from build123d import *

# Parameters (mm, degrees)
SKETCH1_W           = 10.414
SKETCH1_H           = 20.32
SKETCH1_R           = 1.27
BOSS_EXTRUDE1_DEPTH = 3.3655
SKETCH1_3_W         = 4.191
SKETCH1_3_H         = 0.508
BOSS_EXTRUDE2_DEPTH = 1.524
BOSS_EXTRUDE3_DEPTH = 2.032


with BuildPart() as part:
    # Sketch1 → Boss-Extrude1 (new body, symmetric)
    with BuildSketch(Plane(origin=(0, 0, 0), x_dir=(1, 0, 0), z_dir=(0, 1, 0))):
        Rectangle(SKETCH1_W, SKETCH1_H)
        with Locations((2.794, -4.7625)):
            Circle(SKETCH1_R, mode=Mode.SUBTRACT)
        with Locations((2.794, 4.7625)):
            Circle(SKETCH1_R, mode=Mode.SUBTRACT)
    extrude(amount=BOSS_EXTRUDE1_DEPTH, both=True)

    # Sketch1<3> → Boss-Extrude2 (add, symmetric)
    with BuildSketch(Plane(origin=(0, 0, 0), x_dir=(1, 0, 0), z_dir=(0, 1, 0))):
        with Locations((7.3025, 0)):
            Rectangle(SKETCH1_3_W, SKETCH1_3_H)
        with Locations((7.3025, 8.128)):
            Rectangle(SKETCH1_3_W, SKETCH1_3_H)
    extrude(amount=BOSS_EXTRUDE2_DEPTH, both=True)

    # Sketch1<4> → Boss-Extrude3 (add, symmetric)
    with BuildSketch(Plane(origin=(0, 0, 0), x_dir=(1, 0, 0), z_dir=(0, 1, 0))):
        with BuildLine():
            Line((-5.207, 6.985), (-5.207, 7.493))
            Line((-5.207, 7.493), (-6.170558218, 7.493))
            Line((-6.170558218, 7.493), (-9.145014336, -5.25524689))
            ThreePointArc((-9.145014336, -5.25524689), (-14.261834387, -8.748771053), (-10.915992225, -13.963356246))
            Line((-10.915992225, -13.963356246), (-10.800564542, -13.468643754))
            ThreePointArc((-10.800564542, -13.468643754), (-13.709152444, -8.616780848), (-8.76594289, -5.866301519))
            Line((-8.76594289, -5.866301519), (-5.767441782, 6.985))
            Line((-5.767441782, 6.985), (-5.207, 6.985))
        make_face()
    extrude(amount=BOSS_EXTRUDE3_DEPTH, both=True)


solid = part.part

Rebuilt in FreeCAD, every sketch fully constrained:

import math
import FreeCAD as App
import Part
import Sketcher

V = App.Vector
Q = App.Units.Quantity

doc = App.newDocument("Part")
body = doc.addObject("PartDesign::Body", "Body")

sketch1 = doc.addObject("Sketcher::SketchObject", "Sketch")
body.addObject(sketch1)
sketch1.AttachmentSupport = (doc.XZ_Plane, [""])
sketch1.MapMode = "FlatFace"
sketch1.addGeometry(Part.LineSegment(V(-5.207, -10.16, 0), V(-5.207, 10.16, 0)), False)
sketch1.addGeometry(Part.LineSegment(V(-5.207, 10.16, 0), V(5.207, 10.16, 0)), False)
sketch1.addGeometry(Part.LineSegment(V(5.207, 10.16, 0), V(5.207, -10.16, 0)), False)
sketch1.addGeometry(Part.LineSegment(V(5.207, -10.16, 0), V(-5.207, -10.16, 0)), False)
sketch1.addGeometry(Part.Circle(V(2.794, 4.7625, 0), V(0, 0, 1), 1.27), False)
sketch1.addGeometry(Part.Circle(V(2.794, -4.7625, 0), V(0, 0, 1), 1.27), False)
sketch1.addConstraint(Sketcher.Constraint("Coincident", 0, 2, 1, 1))
sketch1.addConstraint(Sketcher.Constraint("Coincident", 1, 2, 2, 1))
sketch1.addConstraint(Sketcher.Constraint("Coincident", 2, 2, 3, 1))
sketch1.addConstraint(Sketcher.Constraint("Coincident", 3, 2, 0, 1))
sketch1.addConstraint(Sketcher.Constraint("Vertical", 0))
sketch1.addConstraint(Sketcher.Constraint("Horizontal", 1))
sketch1.addConstraint(Sketcher.Constraint("Vertical", 2))
sketch1.addConstraint(Sketcher.Constraint("Horizontal", 3))
sketch1.addConstraint(Sketcher.Constraint("Equal", 4, 5))
sketch1.addConstraint(Sketcher.Constraint("Symmetric", 0, 2, 2, 2, -1, 1))
sketch1.addConstraint(Sketcher.Constraint("Symmetric", 4, 3, 5, 3, -1))
sketch1.addConstraint(Sketcher.Constraint("Diameter", 4, Q("0.1 in")))
sketch1.addConstraint(Sketcher.Constraint("DistanceY", 0, 1, 0, 2, Q("0.8 in")))
sketch1.addConstraint(Sketcher.Constraint("DistanceX", 1, 1, 1, 2, Q("0.41 in")))
sketch1.addConstraint(Sketcher.Constraint("DistanceX", -1, 1, 4, 3, Q("0.11 in")))
sketch1.addConstraint(Sketcher.Constraint("DistanceY", -1, 1, 4, 3, Q("0.1875 in")))
pad1 = doc.addObject("PartDesign::Pad", "Pad")
body.addObject(pad1)
pad1.Profile = sketch1
pad1.Length = Q("0.265 in")
pad1.Midplane = True

sketch2 = doc.addObject("Sketcher::SketchObject", "Sketch001")
body.addObject(sketch2)
sketch2.AttachmentSupport = (doc.XZ_Plane, [""])
sketch2.MapMode = "FlatFace"
sketch2.addGeometry(Part.LineSegment(V(5.207, -0.254, 0), V(5.207, 0.254, 0)), False)
sketch2.addGeometry(Part.LineSegment(V(5.207, 0.254, 0), V(9.398, 0.254, 0)), False)
sketch2.addGeometry(Part.LineSegment(V(9.398, 0.254, 0), V(9.398, -0.254, 0)), False)
sketch2.addGeometry(Part.LineSegment(V(9.398, -0.254, 0), V(5.207, -0.254, 0)), False)
sketch2.addGeometry(Part.LineSegment(V(5.207, -8.382, 0), V(5.207, -7.874, 0)), False)
sketch2.addGeometry(Part.LineSegment(V(5.207, -7.874, 0), V(9.398, -7.874, 0)), False)
sketch2.addGeometry(Part.LineSegment(V(9.398, -7.874, 0), V(9.398, -8.382, 0)), False)
sketch2.addGeometry(Part.LineSegment(V(9.398, -8.382, 0), V(5.207, -8.382, 0)), False)
sketch2.addConstraint(Sketcher.Constraint("Coincident", 0, 2, 1, 1))
sketch2.addConstraint(Sketcher.Constraint("Coincident", 1, 2, 2, 1))
sketch2.addConstraint(Sketcher.Constraint("Coincident", 2, 2, 3, 1))
sketch2.addConstraint(Sketcher.Constraint("Coincident", 3, 2, 0, 1))
sketch2.addConstraint(Sketcher.Constraint("Coincident", 4, 2, 5, 1))
sketch2.addConstraint(Sketcher.Constraint("Coincident", 5, 2, 6, 1))
sketch2.addConstraint(Sketcher.Constraint("Coincident", 6, 2, 7, 1))
sketch2.addConstraint(Sketcher.Constraint("Coincident", 7, 2, 4, 1))
sketch2.addConstraint(Sketcher.Constraint("Vertical", 0))
sketch2.addConstraint(Sketcher.Constraint("Horizontal", 1))
sketch2.addConstraint(Sketcher.Constraint("Vertical", 2))
sketch2.addConstraint(Sketcher.Constraint("Horizontal", 3))
sketch2.addConstraint(Sketcher.Constraint("Vertical", 4))
sketch2.addConstraint(Sketcher.Constraint("Horizontal", 5))
sketch2.addConstraint(Sketcher.Constraint("Vertical", 6))
sketch2.addConstraint(Sketcher.Constraint("Horizontal", 7))
sketch2.addConstraint(Sketcher.Constraint("Vertical", 3, 2, 4, 2))
sketch2.addConstraint(Sketcher.Constraint("Vertical", 2, 2, 5, 2))
sketch2.addConstraint(Sketcher.Constraint("Equal", 2, 4))
sketch2.addConstraint(Sketcher.Constraint("DistanceY", 0, 1, 0, 2, Q("0.02 in")))
sketch2.addConstraint(Sketcher.Constraint("DistanceY", 4, 2, 3, 2, Q("0.3 in")))
sketch2.addConstraint(Sketcher.Constraint("DistanceX", 1, 1, 1, 2, Q("0.165 in")))
sketch2.addConstraint(Sketcher.Constraint("DistanceY", -1, 1, 0, 2, Q("0.01 in")))
sketch2.addConstraint(Sketcher.Constraint("DistanceX", -1, 1, 1, 2, Q("0.37 in")))
pad2 = doc.addObject("PartDesign::Pad", "Pad001")
body.addObject(pad2)
pad2.Profile = sketch2
pad2.Length = Q("0.12 in")
pad2.Midplane = True

sketch3 = doc.addObject("Sketcher::SketchObject", "Sketch002")
body.addObject(sketch3)
sketch3.AttachmentSupport = (doc.XZ_Plane, [""])
sketch3.MapMode = "FlatFace"
sketch3.addGeometry(Part.LineSegment(V(-5.207, -6.985, 0), V(-5.207, -7.493, 0)), False)
sketch3.addGeometry(Part.LineSegment(V(-5.207, -7.493, 0), V(-6.170558, -7.493, 0)), False)
sketch3.addGeometry(Part.LineSegment(V(-6.170558, -7.493, 0), V(-9.145014, 5.255247, 0)), False)
sketch3.addGeometry(Part.ArcOfCircle(Part.Circle(V(-9.906, 9.634622, 0), V(0, 0, 1), 4.445), math.radians(103.133448), math.radians(279.857619)), False)
sketch3.addGeometry(Part.LineSegment(V(-10.915992, 13.963356, 0), V(-10.800565, 13.468644, 0)), False)
sketch3.addGeometry(Part.ArcOfCircle(Part.Circle(V(-9.906, 9.634622, 0), V(0, 0, 1), 3.937), math.radians(103.133448), math.radians(286.832519)), False)
sketch3.addGeometry(Part.LineSegment(V(-8.765943, 5.866302, 0), V(-5.767442, -6.985, 0)), False)
sketch3.addGeometry(Part.LineSegment(V(-5.767442, -6.985, 0), V(-5.207, -6.985, 0)), False)
sketch3.addConstraint(Sketcher.Constraint("Coincident", 0, 2, 1, 1))
sketch3.addConstraint(Sketcher.Constraint("Coincident", 1, 2, 2, 1))
sketch3.addConstraint(Sketcher.Constraint("Coincident", 2, 2, 3, 2))
sketch3.addConstraint(Sketcher.Constraint("Coincident", 3, 1, 4, 1))
sketch3.addConstraint(Sketcher.Constraint("Coincident", 4, 2, 5, 1))
sketch3.addConstraint(Sketcher.Constraint("Coincident", 5, 2, 6, 1))
sketch3.addConstraint(Sketcher.Constraint("Coincident", 6, 2, 7, 1))
sketch3.addConstraint(Sketcher.Constraint("Coincident", 7, 2, 0, 1))
sketch3.addConstraint(Sketcher.Constraint("Vertical", 0))
sketch3.addConstraint(Sketcher.Constraint("Horizontal", 1))
sketch3.addConstraint(Sketcher.Constraint("Horizontal", 7))
sketch3.addConstraint(Sketcher.Constraint("Coincident", 5, 3, 3, 3))
sketch3.addConstraint(Sketcher.Constraint("Parallel", 2, 4))
sketch3.addConstraint(Sketcher.Constraint("Parallel", 4, 6))
sketch3.addConstraint(Sketcher.Constraint("Radius", 3, Q("0.175 in")))
sketch3.addConstraint(Sketcher.Constraint("Radius", 5, Q("0.155 in")))
sketch3.addConstraint(Sketcher.Constraint("DistanceY", 0, 2, 0, 1, Q("0.02 in")))
sketch3.addConstraint(Sketcher.Constraint("DistanceX", 3, 3, -1, 1, Q("0.39 in")))
sketch3.addConstraint(Sketcher.Constraint("DistanceX", 0, 2, -1, 1, Q("0.205 in")))
sketch3.addConstraint(Sketcher.Constraint("DistanceY", 0, 2, -1, 1, Q("0.295 in")))
sketch3.addConstraint(Sketcher.Constraint("DistanceX", 1, 2, 1, 1, 0.963558))
sketch3.addConstraint(Sketcher.Constraint("DistanceX", 7, 1, 7, 2, 0.560442))
sketch3.addConstraint(Sketcher.Constraint("DistanceY", -1, 1, 5, 2, 5.866302))
sketch3.addConstraint(Sketcher.Constraint("DistanceX", 5, 2, 6, 2, 2.998501))
sketch3.addConstraint(Sketcher.Constraint("DistanceY", 2, 2, 3, 1, 8.708109))
pad3 = doc.addObject("PartDesign::Pad", "Pad002")
body.addObject(pad3)
pad3.Profile = sketch3
pad3.Length = Q("0.16 in")
pad3.Midplane = True

doc.recompute()
